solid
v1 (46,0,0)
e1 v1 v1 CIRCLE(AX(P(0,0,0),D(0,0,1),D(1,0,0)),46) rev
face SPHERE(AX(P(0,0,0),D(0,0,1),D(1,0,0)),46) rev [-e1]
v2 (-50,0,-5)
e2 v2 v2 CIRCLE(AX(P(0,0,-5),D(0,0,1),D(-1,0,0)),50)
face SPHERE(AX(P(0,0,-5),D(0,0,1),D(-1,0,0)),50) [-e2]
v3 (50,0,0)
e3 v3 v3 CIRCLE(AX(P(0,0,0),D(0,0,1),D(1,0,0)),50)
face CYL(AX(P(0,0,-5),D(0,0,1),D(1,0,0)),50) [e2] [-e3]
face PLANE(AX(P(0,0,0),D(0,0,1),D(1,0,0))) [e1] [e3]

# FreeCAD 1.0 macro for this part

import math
import FreeCAD as App
import Part
import Sketcher

doc = App.newDocument("Part")
params = doc.addObject("Spreadsheet::Sheet", "Params")
for row, (alias, value) in enumerate([
    ("sketch1_diameter", "100 mm"),
    ("pad1_length", "5 mm"),
    ("sketch2_radius", "50 mm"),
    ("revolution_angle", "180 deg"),
    ("sketch3_radius", "46 mm"),
    ("groove_angle", "360 deg"),
], start=1):
    params.set(f"A{row}", alias)
    params.set(f"B{row}", "=" + value)
    params.setAlias(f"B{row}", alias)

body = doc.addObject("PartDesign::Body", "Body")

# Sketch on XY plane
sketch1 = doc.addObject("Sketcher::SketchObject", "Sketch")
body.addObject(sketch1)
sketch1.AttachmentSupport = (doc.XY_Plane, [""])
sketch1.MapMode = "FlatFace"
sketch1.addGeometry(Part.Circle(App.Vector(0, 0, 0), App.Vector(0, 0, 1), 50), False)
sketch1.addConstraint([
    Sketcher.Constraint("Coincident", 0, 3, -1, 1),
    Sketcher.Constraint("Diameter", 0, 100.0),
])
sketch1.setExpression("Constraints[1]", "Params.sketch1_diameter")
pad1 = doc.addObject("PartDesign::Pad", "Pad")
body.addObject(pad1)
pad1.Profile = sketch1
pad1.setExpression("Length", "Params.pad1_length")
pad1.Reversed = True

# Sketch on XY plane
sketch2 = doc.addObject("Sketcher::SketchObject", "Sketch001")
body.addObject(sketch2)
sketch2.AttachmentSupport = (doc.XY_Plane, [""])
sketch2.MapMode = "FlatFace"
sketch2.AttachmentOffset = App.Placement(App.Vector(0, 0, -5), App.Rotation())
sketch2.addGeometry([
    Part.LineSegment(App.Vector(0, 50, 0), App.Vector(0, -50, 0)),
    Part.ArcOfCircle(Part.Circle(App.Vector(0, 0, 0), App.Vector(0, 0, 1), 50), math.radians(90), math.radians(270)),
], False)
sketch2.addConstraint([
    Sketcher.Constraint("Coincident", 0, 1, 1, 1),
    Sketcher.Constraint("Coincident", 1, 2, 0, 2),
    Sketcher.Constraint("Vertical", 0),
    Sketcher.Constraint("Coincident", 1, 3, -1, 1),
    Sketcher.Constraint("PointOnObject", 0, 1, -2),
    Sketcher.Constraint("Radius", 1, 50.0),
])
sketch2.setExpression("Constraints[5]", "Params.sketch2_radius")
revolution = doc.addObject("PartDesign::Revolution", "Revolution")
body.addObject(revolution)
revolution.Profile = sketch2
revolution.ReferenceAxis = (sketch2, ["V_Axis"])
revolution.setExpression("Angle", "Params.revolution_angle")
revolution.Reversed = True

# Sketch on XY plane
sketch3 = doc.addObject("Sketcher::SketchObject", "Sketch002")
body.addObject(sketch3)
sketch3.AttachmentSupport = (doc.XY_Plane, [""])
sketch3.MapMode = "FlatFace"
sketch3.addGeometry([
    Part.LineSegment(App.Vector(0, 46, 0), App.Vector(0, -46, 0)),
    Part.ArcOfCircle(Part.Circle(App.Vector(0, 0, 0), App.Vector(0, 0, 1), 46), math.radians(-90), math.radians(90)),
], False)
sketch3.addConstraint([
    Sketcher.Constraint("Coincident", 0, 1, 1, 2),
    Sketcher.Constraint("Coincident", 1, 1, 0, 2),
    Sketcher.Constraint("Vertical", 0),
    Sketcher.Constraint("Coincident", 1, 3, -1, 1),
    Sketcher.Constraint("PointOnObject", 0, 1, -2),
    Sketcher.Constraint("Radius", 1, 46.0),
])
sketch3.setExpression("Constraints[5]", "Params.sketch3_radius")
groove = doc.addObject("PartDesign::Groove", "Groove")
body.addObject(groove)
groove.Profile = sketch3
groove.ReferenceAxis = (sketch3, ["V_Axis"])
groove.setExpression("Angle", "Params.groove_angle")

doc.recompute()
